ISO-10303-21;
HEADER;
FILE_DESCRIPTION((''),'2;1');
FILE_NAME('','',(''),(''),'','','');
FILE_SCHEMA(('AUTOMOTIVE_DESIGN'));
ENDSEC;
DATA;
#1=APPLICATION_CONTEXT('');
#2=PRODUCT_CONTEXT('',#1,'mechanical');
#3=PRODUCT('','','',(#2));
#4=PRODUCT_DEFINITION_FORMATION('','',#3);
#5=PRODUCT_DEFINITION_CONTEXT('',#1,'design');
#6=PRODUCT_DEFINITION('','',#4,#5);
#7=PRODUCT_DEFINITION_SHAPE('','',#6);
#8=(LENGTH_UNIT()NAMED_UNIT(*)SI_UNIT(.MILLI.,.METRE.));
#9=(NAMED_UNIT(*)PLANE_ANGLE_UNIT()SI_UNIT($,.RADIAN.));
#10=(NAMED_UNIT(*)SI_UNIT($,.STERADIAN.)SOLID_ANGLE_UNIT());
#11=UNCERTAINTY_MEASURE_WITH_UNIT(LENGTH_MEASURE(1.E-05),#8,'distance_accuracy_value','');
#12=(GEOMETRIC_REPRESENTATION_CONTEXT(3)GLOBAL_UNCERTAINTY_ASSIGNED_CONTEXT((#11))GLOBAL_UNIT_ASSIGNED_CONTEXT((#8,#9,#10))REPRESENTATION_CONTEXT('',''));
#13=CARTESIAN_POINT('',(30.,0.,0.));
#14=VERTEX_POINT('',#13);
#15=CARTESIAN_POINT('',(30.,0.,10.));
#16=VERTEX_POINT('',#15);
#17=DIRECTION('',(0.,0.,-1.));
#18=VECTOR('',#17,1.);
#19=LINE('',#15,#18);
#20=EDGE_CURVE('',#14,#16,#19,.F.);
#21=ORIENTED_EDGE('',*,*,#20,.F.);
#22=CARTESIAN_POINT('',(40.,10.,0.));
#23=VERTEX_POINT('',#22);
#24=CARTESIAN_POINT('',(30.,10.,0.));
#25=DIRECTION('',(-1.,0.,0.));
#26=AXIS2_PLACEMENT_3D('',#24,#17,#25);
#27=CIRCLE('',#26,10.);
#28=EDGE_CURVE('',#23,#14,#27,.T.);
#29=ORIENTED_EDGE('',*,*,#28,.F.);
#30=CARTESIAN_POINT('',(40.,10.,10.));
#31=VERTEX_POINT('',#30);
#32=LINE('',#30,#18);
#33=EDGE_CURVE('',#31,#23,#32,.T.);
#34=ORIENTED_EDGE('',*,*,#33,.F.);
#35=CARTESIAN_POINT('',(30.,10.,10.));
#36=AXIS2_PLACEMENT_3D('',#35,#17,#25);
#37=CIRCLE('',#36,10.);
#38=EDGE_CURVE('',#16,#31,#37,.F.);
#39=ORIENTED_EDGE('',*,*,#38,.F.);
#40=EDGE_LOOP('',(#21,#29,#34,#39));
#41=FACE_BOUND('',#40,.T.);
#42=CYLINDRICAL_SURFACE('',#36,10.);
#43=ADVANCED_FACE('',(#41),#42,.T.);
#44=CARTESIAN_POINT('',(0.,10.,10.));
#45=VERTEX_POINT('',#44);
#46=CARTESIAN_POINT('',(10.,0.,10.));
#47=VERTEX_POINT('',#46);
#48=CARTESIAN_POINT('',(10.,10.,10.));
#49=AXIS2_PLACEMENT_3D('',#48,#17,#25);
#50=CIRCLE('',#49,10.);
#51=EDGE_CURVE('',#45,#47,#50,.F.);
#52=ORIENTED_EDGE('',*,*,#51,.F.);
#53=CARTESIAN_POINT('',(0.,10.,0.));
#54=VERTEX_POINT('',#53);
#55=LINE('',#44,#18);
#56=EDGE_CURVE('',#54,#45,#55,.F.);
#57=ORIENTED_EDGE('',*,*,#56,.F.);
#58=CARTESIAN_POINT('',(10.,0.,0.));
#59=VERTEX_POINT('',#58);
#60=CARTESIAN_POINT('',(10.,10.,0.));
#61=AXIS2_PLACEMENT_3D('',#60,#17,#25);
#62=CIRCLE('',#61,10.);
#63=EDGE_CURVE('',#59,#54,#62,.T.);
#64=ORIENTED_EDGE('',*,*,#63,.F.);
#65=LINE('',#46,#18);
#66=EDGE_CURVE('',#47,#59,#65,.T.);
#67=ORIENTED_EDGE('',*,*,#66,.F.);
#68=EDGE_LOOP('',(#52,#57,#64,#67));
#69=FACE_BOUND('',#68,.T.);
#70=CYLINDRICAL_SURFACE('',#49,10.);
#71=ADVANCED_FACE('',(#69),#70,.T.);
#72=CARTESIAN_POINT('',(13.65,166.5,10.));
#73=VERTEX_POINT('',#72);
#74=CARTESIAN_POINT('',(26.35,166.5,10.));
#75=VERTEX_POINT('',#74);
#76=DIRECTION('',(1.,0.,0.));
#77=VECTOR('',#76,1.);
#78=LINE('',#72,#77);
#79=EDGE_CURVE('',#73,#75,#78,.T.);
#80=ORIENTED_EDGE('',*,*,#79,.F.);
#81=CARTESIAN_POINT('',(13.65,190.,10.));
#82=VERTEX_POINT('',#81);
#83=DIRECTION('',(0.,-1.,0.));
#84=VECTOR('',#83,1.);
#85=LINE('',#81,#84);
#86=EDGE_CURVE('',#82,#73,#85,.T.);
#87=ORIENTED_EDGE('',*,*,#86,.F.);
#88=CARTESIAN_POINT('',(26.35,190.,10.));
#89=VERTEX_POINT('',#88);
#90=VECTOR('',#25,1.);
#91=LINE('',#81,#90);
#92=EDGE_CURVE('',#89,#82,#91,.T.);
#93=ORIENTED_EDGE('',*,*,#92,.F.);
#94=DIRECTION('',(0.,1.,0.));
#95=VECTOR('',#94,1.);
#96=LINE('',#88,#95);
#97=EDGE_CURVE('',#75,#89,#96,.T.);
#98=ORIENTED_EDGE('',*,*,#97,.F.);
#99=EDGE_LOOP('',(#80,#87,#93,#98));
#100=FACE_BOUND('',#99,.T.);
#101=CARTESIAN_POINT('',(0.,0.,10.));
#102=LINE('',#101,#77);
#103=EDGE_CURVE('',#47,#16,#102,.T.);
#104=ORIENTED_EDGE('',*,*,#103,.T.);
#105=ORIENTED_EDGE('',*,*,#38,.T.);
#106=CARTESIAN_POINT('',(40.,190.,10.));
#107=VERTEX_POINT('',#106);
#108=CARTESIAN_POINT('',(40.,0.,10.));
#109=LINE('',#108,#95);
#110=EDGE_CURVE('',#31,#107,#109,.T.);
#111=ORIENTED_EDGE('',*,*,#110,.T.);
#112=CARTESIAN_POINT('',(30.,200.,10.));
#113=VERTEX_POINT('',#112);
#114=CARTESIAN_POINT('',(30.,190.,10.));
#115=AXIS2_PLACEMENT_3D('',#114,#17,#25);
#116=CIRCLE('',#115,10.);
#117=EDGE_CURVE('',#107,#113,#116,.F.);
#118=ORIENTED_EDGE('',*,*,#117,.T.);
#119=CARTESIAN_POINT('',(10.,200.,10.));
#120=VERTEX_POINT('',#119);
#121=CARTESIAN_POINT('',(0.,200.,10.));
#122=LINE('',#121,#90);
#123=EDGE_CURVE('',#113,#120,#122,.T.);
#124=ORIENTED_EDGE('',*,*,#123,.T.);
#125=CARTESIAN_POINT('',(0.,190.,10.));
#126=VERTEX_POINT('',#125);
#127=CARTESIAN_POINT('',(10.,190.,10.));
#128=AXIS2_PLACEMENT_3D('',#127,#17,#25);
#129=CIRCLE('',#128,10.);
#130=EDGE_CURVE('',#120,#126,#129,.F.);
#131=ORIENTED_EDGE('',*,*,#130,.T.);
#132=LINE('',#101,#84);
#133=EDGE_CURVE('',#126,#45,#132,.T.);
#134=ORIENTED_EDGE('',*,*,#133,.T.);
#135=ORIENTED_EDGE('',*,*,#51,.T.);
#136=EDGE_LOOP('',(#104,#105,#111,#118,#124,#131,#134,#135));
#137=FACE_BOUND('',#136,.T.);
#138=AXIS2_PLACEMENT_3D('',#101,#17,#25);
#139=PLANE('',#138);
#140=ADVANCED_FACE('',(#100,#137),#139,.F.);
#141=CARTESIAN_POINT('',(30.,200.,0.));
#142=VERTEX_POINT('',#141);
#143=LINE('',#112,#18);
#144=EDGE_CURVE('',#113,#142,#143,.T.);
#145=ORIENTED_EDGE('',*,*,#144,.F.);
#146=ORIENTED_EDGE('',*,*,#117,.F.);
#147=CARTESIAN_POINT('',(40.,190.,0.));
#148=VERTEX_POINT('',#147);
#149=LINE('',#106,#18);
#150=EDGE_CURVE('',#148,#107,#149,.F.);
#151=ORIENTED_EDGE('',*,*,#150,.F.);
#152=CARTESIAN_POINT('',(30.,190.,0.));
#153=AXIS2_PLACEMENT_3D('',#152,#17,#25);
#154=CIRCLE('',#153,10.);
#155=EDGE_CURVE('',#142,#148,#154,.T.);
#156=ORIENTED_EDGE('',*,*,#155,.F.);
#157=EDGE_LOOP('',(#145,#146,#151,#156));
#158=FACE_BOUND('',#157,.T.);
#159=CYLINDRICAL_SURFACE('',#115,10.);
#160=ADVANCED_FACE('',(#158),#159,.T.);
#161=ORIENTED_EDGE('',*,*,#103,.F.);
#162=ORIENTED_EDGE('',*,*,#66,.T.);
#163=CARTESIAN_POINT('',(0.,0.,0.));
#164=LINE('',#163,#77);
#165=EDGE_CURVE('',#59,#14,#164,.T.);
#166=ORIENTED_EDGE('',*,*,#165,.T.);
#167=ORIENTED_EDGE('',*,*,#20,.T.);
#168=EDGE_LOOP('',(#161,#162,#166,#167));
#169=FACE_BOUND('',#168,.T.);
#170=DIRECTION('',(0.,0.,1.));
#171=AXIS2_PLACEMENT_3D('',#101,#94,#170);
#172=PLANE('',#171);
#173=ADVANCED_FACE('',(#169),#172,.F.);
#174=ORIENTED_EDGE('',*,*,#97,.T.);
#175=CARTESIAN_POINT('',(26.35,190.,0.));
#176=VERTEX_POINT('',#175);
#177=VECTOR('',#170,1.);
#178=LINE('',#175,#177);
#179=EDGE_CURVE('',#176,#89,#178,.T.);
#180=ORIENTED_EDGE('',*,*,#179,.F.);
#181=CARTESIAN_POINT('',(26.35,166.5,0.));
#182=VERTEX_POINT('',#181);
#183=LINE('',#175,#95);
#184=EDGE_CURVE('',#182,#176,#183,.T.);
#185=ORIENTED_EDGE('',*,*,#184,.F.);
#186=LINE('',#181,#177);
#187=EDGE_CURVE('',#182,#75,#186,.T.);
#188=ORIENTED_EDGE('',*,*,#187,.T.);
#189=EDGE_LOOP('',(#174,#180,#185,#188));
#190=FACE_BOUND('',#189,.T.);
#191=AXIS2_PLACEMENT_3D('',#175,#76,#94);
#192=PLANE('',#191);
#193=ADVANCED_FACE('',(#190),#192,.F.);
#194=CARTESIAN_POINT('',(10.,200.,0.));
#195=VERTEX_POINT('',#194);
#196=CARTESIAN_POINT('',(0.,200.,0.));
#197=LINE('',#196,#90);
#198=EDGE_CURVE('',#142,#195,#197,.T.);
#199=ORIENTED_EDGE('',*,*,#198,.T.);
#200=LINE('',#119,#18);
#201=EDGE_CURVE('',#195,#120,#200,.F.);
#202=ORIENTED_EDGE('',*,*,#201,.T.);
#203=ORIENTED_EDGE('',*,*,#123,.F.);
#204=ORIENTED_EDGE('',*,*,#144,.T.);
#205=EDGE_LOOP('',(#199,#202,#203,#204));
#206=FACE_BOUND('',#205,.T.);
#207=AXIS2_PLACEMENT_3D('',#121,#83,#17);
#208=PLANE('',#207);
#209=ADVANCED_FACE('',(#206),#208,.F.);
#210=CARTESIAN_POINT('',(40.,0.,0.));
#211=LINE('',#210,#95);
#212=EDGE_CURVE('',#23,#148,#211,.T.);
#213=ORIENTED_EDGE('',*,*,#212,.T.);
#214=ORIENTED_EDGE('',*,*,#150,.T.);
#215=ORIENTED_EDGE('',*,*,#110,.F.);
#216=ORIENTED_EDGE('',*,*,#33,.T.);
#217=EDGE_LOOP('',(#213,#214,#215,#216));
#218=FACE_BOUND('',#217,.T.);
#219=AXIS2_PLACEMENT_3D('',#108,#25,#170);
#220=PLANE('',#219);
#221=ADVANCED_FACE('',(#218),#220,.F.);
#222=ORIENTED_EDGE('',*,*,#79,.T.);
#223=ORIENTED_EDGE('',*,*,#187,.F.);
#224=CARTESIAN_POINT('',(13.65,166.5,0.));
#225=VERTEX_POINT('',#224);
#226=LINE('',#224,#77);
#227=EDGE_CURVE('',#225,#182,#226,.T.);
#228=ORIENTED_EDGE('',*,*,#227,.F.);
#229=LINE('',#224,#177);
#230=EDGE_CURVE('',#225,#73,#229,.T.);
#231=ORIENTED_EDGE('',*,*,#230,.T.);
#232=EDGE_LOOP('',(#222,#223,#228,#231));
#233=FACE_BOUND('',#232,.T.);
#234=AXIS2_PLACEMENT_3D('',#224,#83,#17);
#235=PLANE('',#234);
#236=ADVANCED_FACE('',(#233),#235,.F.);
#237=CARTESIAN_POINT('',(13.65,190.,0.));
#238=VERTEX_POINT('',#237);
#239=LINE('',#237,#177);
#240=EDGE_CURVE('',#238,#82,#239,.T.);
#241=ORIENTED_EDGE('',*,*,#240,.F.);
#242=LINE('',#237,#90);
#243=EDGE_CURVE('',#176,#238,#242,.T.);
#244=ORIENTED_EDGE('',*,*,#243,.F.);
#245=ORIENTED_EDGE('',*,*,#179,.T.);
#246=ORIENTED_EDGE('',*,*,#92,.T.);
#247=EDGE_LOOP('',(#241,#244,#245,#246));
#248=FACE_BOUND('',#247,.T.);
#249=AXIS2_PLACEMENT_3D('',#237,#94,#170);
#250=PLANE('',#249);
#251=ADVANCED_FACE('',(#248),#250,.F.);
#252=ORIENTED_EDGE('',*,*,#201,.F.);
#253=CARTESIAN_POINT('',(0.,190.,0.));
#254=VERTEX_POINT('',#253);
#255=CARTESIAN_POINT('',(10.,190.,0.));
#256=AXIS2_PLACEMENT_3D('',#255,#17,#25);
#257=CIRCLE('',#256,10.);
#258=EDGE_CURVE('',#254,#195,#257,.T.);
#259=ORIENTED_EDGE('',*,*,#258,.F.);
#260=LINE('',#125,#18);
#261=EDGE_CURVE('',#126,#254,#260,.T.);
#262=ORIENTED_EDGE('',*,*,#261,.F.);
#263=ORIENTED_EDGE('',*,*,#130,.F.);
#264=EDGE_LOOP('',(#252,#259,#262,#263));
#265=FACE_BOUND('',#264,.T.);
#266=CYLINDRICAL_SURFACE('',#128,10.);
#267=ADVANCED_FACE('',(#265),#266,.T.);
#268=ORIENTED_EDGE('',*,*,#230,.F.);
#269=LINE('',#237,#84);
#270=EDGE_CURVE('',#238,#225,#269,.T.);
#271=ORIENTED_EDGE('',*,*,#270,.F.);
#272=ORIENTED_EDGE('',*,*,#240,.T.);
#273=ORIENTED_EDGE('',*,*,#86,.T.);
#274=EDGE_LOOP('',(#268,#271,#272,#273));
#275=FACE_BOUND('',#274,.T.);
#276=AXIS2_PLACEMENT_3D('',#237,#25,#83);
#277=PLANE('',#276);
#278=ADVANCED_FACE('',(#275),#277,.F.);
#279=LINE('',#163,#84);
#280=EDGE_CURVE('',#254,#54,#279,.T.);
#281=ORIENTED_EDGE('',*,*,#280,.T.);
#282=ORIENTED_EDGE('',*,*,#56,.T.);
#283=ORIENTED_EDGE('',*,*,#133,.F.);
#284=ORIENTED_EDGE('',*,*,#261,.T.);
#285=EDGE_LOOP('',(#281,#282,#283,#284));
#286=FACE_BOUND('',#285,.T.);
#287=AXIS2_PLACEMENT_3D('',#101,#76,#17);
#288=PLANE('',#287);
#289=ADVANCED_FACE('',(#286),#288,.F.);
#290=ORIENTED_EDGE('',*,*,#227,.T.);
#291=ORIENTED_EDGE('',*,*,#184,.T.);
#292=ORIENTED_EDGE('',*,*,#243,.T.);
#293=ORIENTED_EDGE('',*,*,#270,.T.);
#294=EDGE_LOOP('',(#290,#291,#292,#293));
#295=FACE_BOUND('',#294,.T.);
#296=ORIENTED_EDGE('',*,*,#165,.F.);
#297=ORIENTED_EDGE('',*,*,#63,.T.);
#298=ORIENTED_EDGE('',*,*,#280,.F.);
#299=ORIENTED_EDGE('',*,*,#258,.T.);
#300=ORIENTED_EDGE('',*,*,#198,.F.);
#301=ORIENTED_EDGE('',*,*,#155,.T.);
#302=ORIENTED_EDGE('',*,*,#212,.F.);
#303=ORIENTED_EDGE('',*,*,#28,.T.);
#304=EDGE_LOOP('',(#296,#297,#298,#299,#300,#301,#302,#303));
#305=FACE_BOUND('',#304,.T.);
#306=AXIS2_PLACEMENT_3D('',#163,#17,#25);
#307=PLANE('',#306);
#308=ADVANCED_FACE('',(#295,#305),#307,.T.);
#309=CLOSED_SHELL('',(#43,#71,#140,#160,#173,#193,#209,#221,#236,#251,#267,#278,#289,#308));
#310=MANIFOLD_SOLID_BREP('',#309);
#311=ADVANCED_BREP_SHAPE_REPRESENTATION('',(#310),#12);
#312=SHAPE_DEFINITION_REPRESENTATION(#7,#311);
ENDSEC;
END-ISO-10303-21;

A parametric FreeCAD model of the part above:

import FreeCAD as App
import Part
import Sketcher

V = App.Vector


def edges_at(feature, points):
    """Names of the edges that pass closest to the given points."""
    edges = feature.Shape.Edges
    near = lambda p: min(range(len(edges)), key=lambda i: edges[i].distToShape(Part.Vertex(*p))[0])
    return sorted({f"Edge{near(p) + 1}" for p in points})


def add_polygon(sketch, points):
    """Adds a closed chain of lines whose ends are joined by coincident constraints."""
    first, n = sketch.GeometryCount, len(points)
    for a, b in zip(points, points[1:] + points[:1]):
        sketch.addGeometry(Part.LineSegment(App.Vector(*a, 0), App.Vector(*b, 0)), False)
    for i in range(n):
        sketch.addConstraint(Sketcher.Constraint("Coincident", first + i, 2, first + (i + 1) % n, 1))

doc = App.newDocument("Part")
body = doc.addObject("PartDesign::Body", "Body")

# Sketch on XY plane
sketch1 = body.newObject("Sketcher::SketchObject", "Sketch")
sketch1.AttachmentSupport = (doc.getObject("XY_Plane"), [""])
sketch1.MapMode = "FlatFace"
add_polygon(sketch1, [(0, 200), (0, 0), (40, 0), (40, 200)])  # lines 0-3
sketch1.addConstraint([
    Sketcher.Constraint("Vertical", 0),
    Sketcher.Constraint("Horizontal", 1),
    Sketcher.Constraint("Vertical", 2),
    Sketcher.Constraint("Horizontal", 3),
    Sketcher.Constraint("Coincident", 0, 2, -1, 1),
    Sketcher.Constraint("DistanceX", 1, 1, 1, 2, 40.0),
    Sketcher.Constraint("DistanceY", 0, 2, 0, 1, 200.0),
])
pad1 = body.newObject("PartDesign::Pad", "Pad")
pad1.Profile = sketch1
pad1.Length = 10
doc.recompute()

fillet = body.newObject("PartDesign::Fillet", "Fillet")
fillet.Base = (pad1, edges_at(pad1, [
    (0, 200, 5),
    (40, 200, 5),
    (40, 0, 5),
    (0, 0, 5),
]))
fillet.Radius = 10

# Sketch on XY plane
sketch2 = body.newObject("Sketcher::SketchObject", "Sketch001")
sketch2.AttachmentSupport = (doc.getObject("XY_Plane"), [""])
sketch2.MapMode = "FlatFace"
sketch2.AttachmentOffset = App.Placement(V(0, 0, 10), App.Rotation())
add_polygon(sketch2, [(14, 190), (14, 166), (26, 166), (26, 190)])  # lines 0-3
sketch2.addConstraint([
    Sketcher.Constraint("Vertical", 0),
    Sketcher.Constraint("Horizontal", 1),
    Sketcher.Constraint("Vertical", 2),
    Sketcher.Constraint("Horizontal", 3),
    Sketcher.Constraint("DistanceX", 1, 1, 1, 2, 12.7),
    Sketcher.Constraint("DistanceY", 0, 2, 0, 1, 23.5),
    Sketcher.Constraint("DistanceY", -1, 1, 2, 2, 190.0),
    Sketcher.Constraint("DistanceX", -1, 1, 0, 2, 13.65),
])
pocket1 = body.newObject("PartDesign::Pocket", "Pocket")
pocket1.Profile = sketch2
pocket1.Type = "ThroughAll"

doc.recompute()
